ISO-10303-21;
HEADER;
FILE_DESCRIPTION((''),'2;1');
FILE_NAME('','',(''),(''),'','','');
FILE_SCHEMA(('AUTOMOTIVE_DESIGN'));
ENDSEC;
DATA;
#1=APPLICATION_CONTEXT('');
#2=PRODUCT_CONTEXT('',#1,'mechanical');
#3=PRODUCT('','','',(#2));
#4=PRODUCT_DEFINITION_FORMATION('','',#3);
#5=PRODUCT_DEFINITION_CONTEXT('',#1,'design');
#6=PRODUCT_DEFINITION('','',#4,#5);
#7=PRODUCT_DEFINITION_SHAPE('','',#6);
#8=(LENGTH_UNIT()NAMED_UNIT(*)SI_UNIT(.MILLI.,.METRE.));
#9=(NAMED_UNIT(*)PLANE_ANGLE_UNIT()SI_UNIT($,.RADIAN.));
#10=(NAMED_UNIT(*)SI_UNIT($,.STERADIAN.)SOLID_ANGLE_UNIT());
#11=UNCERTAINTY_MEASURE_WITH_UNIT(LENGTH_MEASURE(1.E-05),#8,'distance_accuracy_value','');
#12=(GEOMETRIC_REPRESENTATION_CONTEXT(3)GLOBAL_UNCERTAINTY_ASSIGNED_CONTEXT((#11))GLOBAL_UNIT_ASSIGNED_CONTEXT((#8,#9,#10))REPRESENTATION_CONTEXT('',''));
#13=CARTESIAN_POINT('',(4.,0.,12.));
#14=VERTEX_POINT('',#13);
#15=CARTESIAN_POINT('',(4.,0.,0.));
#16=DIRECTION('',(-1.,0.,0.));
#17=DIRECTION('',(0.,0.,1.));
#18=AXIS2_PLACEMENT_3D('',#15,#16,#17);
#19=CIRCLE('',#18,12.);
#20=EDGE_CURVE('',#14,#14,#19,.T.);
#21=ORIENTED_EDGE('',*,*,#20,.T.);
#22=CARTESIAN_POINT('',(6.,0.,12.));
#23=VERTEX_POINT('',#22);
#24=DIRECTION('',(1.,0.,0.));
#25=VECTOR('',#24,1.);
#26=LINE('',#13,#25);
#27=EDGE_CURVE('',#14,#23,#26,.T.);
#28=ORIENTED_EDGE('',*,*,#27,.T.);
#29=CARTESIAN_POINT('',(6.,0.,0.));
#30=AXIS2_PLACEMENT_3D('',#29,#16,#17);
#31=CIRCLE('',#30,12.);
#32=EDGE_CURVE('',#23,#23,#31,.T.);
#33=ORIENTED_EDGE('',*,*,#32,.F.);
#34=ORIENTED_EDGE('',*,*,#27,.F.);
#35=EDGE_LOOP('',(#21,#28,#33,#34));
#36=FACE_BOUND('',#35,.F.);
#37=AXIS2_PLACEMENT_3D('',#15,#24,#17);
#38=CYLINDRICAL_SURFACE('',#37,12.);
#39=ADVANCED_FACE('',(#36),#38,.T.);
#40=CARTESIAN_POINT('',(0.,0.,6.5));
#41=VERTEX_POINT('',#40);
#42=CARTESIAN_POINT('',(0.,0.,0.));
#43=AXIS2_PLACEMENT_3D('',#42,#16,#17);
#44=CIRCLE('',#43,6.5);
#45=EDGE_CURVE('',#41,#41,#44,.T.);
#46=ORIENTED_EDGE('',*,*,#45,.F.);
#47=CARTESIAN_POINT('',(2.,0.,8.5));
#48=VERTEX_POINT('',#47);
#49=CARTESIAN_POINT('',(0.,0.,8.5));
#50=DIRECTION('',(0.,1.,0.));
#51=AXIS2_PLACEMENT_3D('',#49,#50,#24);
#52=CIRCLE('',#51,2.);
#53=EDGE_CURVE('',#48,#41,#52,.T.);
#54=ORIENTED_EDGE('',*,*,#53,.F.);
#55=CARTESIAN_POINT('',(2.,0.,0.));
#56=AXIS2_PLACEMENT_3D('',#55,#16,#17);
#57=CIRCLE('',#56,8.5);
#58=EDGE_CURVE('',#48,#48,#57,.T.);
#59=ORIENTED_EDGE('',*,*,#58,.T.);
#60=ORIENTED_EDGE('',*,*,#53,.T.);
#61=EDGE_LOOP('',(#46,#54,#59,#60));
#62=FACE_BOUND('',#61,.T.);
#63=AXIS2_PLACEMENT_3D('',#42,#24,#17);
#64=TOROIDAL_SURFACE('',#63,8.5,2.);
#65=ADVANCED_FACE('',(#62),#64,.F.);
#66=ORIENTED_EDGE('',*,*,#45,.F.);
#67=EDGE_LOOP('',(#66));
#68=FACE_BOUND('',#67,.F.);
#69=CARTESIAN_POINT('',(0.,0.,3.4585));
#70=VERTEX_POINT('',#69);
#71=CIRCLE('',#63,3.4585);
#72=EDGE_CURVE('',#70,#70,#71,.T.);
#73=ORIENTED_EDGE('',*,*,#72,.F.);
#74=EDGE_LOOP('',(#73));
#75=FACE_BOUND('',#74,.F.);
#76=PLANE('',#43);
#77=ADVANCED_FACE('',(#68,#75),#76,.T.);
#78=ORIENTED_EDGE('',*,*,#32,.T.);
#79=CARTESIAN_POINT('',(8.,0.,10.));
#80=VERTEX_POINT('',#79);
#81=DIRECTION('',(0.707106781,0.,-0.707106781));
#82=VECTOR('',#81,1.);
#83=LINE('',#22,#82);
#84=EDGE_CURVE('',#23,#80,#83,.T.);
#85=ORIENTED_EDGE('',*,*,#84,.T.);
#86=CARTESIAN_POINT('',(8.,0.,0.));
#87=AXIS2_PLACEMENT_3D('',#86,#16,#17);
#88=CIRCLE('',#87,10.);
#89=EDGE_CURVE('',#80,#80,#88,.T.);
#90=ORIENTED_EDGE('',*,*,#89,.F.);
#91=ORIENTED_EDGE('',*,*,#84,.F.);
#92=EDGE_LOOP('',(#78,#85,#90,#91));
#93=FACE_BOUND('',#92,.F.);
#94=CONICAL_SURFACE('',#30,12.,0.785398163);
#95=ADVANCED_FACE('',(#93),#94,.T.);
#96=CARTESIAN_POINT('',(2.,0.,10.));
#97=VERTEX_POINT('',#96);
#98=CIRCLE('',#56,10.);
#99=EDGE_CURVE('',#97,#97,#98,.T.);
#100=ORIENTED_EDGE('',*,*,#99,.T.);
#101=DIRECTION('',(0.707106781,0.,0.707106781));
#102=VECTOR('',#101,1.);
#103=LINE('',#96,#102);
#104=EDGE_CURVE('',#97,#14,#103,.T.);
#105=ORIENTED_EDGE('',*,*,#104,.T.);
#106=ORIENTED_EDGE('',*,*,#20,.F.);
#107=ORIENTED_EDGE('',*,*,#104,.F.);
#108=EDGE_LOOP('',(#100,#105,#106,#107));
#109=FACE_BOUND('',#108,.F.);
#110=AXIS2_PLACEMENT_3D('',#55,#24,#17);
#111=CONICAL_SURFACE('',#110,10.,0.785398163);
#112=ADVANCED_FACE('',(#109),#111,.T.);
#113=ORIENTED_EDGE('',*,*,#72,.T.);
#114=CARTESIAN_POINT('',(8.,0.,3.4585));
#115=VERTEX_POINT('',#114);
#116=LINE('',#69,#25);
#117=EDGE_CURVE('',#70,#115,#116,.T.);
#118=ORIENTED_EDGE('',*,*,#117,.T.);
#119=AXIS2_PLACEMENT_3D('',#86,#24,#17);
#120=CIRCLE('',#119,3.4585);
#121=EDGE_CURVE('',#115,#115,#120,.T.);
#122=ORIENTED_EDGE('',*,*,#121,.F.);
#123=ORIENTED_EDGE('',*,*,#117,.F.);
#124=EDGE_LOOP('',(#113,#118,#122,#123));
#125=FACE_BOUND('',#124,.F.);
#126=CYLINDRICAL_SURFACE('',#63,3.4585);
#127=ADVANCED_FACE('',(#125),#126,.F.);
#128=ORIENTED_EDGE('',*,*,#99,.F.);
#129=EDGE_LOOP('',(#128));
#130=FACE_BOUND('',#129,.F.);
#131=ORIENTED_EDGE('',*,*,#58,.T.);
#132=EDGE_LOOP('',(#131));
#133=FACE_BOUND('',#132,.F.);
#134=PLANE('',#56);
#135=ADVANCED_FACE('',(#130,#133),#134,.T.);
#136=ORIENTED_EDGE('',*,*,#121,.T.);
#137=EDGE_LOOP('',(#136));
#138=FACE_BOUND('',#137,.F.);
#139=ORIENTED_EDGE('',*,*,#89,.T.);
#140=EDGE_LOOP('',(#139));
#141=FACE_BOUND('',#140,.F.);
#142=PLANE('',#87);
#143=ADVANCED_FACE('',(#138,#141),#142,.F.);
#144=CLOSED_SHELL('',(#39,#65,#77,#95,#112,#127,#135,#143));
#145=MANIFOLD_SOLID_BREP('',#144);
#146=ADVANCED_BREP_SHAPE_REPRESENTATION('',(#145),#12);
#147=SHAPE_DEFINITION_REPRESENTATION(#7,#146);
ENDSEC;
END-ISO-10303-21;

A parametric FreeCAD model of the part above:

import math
import FreeCAD as App
import Part
import Sketcher
Q = App.Units.Quantity

doc = App.newDocument("Part")
body = doc.addObject("PartDesign::Body", "Body")

sketch1 = body.newObject("Sketcher::SketchObject", "Sketch")
sketch1.AttachmentSupport = (doc.getObject("XZ_Plane"), [""])
sketch1.MapMode = "FlatFace"
sketch1.addGeometry([
    Part.LineSegment(App.Vector(8, 10, 0), App.Vector(8, 0, 0)),
    Part.LineSegment(App.Vector(8, 0, 0), App.Vector(0, 0, 0)),
    Part.LineSegment(App.Vector(0, 0, 0), App.Vector(0, 6.5, 0)),
    Part.ArcOfCircle(Part.Circle(App.Vector(0, 8.5, 0), App.Vector(0, 0, 1), 2), math.radians(-90), math.radians(0)),
    Part.LineSegment(App.Vector(2, 8.5, 0), App.Vector(2, 10, 0)),
    Part.LineSegment(App.Vector(2, 10, 0), App.Vector(4, 12, 0)),
    Part.LineSegment(App.Vector(4, 12, 0), App.Vector(6, 12, 0)),
    Part.LineSegment(App.Vector(6, 12, 0), App.Vector(8, 10, 0)),
], False)
sketch1.addConstraint([
    Sketcher.Constraint("Coincident", 0, 2, 1, 1),
    Sketcher.Constraint("Coincident", 1, 2, 2, 1),
    Sketcher.Constraint("Coincident", 2, 2, 3, 1),
    Sketcher.Constraint("Tangent", 3, 2, 4, 1),
    Sketcher.Constraint("Coincident", 4, 2, 5, 1),
    Sketcher.Constraint("Coincident", 5, 2, 6, 1),
    Sketcher.Constraint("Coincident", 6, 2, 7, 1),
    Sketcher.Constraint("Coincident", 7, 2, 0, 1),
    Sketcher.Constraint("Vertical", 0),
    Sketcher.Constraint("Horizontal", 1),
    Sketcher.Constraint("Vertical", 2),
    Sketcher.Constraint("Vertical", 4),
    Sketcher.Constraint("Horizontal", 6),
    Sketcher.Constraint("Coincident", 1, 2, -1, 1),
    Sketcher.Constraint("PointOnObject", 3, 3, -2),
    Sketcher.Constraint("Perpendicular", 5, 7),
    Sketcher.Constraint("Horizontal", 4, 2, 7, 2),
    Sketcher.Constraint("Equal", 5, 7),
    Sketcher.Constraint("Radius", 3, Q("2 mm")),
    Sketcher.Constraint("DistanceX", 6, 1, 6, 2, Q("2 mm")),
    Sketcher.Constraint("DistanceY", 2, 1, 2, 2, Q("6.5 mm")),
    Sketcher.Constraint("DistanceY", -1, 1, 5, 2, Q("12 mm")),
    Sketcher.Constraint("DistanceX", -1, 1, 6, 2, Q("6 mm")),
])
revolution = body.newObject("PartDesign::Revolution", "Revolution")
revolution.Profile = sketch1
revolution.ReferenceAxis = (sketch1, ["H_Axis"])
revolution.Angle = 360

sketch2 = body.newObject("Sketcher::SketchObject", "Sketch001")
sketch2.AttachmentSupport = (doc.getObject("YZ_Plane"), [""])
sketch2.MapMode = "FlatFace"
sketch2.addGeometry(Part.Circle(App.Vector(0, 0, 0), App.Vector(0, 0, 1), 3.5), False)
sketch2.addConstraint([
    Sketcher.Constraint("Coincident", 0, 3, -1, 1),
    Sketcher.Constraint("Diameter", 0, Q("6.917 mm")),
])
doc.recompute()
hole = body.newObject("PartDesign::Hole", "Hole")
hole.Profile = sketch2
hole.ThreadType = "None"
hole.Diameter = 6.917
hole.DepthType = "ThroughAll"
hole.Reversed = True

doc.recompute()
